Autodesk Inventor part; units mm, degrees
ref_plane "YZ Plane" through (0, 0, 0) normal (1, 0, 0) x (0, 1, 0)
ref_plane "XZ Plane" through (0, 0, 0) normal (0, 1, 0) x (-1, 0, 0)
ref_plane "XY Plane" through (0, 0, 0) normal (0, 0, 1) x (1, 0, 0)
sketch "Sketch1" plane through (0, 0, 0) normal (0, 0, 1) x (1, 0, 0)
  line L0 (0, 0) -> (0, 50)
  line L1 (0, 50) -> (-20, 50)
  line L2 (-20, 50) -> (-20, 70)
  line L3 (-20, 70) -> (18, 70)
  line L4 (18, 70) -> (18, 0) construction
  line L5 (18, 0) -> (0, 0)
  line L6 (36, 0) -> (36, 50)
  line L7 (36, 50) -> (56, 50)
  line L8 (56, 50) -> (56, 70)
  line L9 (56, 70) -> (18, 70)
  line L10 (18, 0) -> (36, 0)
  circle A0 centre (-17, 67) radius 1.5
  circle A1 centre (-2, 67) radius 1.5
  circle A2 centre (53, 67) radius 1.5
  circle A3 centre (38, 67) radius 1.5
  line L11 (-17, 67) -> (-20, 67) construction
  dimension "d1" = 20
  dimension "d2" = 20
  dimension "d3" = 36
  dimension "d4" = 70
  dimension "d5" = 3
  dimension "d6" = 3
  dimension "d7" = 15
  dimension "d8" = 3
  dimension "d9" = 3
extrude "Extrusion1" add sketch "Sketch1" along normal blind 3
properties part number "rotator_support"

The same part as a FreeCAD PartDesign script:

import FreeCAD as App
import Part
import Sketcher
Q = App.Units.Quantity


def add_polygon(sketch, points):
    """Adds a closed chain of lines whose ends are joined by coincident constraints."""
    first, n = sketch.GeometryCount, len(points)
    for a, b in zip(points, points[1:] + points[:1]):
        sketch.addGeometry(Part.LineSegment(App.Vector(*a, 0), App.Vector(*b, 0)), False)
    for i in range(n):
        sketch.addConstraint(Sketcher.Constraint("Coincident", first + i, 2, first + (i + 1) % n, 1))

doc = App.newDocument("Part")
body = doc.addObject("PartDesign::Body", "Body")

# Sketch on XY plane
sketch1 = body.newObject("Sketcher::SketchObject", "Sketch")
sketch1.AttachmentSupport = (doc.getObject("XY_Plane"), [""])
sketch1.MapMode = "FlatFace"
add_polygon(sketch1, [(0, 50), (0, 0), (36, 0), (36, 50), (56, 50), (56, 70), (-20, 70), (-20, 50)])  # lines 0-7
sketch1.addGeometry(Part.Circle(App.Vector(-17, 67, 0), App.Vector(0, 0, 1), 1.5), False)  # 8
sketch1.addGeometry(Part.Circle(App.Vector(-2, 67, 0), App.Vector(0, 0, 1), 1.5), False)  # 9
sketch1.addGeometry(Part.Circle(App.Vector(38, 67, 0), App.Vector(0, 0, 1), 1.5), False)  # 10
sketch1.addGeometry(Part.Circle(App.Vector(53, 67, 0), App.Vector(0, 0, 1), 1.5), False)  # 11
sketch1.addConstraint(Sketcher.Constraint("Vertical", 0))
sketch1.addConstraint(Sketcher.Constraint("Horizontal", 1))
sketch1.addConstraint(Sketcher.Constraint("Vertical", 2))
sketch1.addConstraint(Sketcher.Constraint("Horizontal", 3))
sketch1.addConstraint(Sketcher.Constraint("Vertical", 4))
sketch1.addConstraint(Sketcher.Constraint("Horizontal", 5))
sketch1.addConstraint(Sketcher.Constraint("Vertical", 6))
sketch1.addConstraint(Sketcher.Constraint("Horizontal", 7))
sketch1.addConstraint(Sketcher.Constraint("Coincident", 0, 2, -1, 1))
sketch1.addConstraint(Sketcher.Constraint("Equal", 8, 9))
sketch1.addConstraint(Sketcher.Constraint("Equal", 9, 10))
sketch1.addConstraint(Sketcher.Constraint("Equal", 10, 11))
sketch1.addConstraint(Sketcher.Constraint("Horizontal", 8, 3, 9, 3))
sketch1.addConstraint(Sketcher.Constraint("Horizontal", 9, 3, 10, 3))
sketch1.addConstraint(Sketcher.Constraint("Horizontal", 10, 3, 11, 3))
sketch1.addConstraint(Sketcher.Constraint("Horizontal", 3, 2, 6, 2))
sketch1.addConstraint(Sketcher.Constraint("Equal", 3, 7))
sketch1.addConstraint(Sketcher.Constraint("Equal", 7, 4))
sketch1.addConstraint(Sketcher.Constraint("Diameter", 8, Q("3 mm")))
sketch1.addConstraint(Sketcher.Constraint("DistanceX", 1, 1, 1, 2, Q("36 mm")))
sketch1.addConstraint(Sketcher.Constraint("DistanceX", 3, 1, 3, 2, Q("20 mm")))
sketch1.addConstraint(Sketcher.Constraint("DistanceY", -1, 1, 4, 2, Q("70 mm")))
sketch1.addConstraint(Sketcher.Constraint("DistanceX", 8, 3, 9, 3, Q("15 mm")))
sketch1.addConstraint(Sketcher.Constraint("DistanceX", 10, 3, 11, 3, Q("15 mm")))
sketch1.addConstraint(Sketcher.Constraint("DistanceX", 8, 3, 11, 3, Q("70 mm")))
sketch1.addConstraint(Sketcher.Constraint("DistanceX", 11, 3, 3, 2, Q("3 mm")))
sketch1.addConstraint(Sketcher.Constraint("DistanceY", 11, 3, 4, 2, Q("3 mm")))
pad1 = body.newObject("PartDesign::Pad", "Pad")
pad1.Profile = sketch1
pad1.Length = 3

doc.recompute()
